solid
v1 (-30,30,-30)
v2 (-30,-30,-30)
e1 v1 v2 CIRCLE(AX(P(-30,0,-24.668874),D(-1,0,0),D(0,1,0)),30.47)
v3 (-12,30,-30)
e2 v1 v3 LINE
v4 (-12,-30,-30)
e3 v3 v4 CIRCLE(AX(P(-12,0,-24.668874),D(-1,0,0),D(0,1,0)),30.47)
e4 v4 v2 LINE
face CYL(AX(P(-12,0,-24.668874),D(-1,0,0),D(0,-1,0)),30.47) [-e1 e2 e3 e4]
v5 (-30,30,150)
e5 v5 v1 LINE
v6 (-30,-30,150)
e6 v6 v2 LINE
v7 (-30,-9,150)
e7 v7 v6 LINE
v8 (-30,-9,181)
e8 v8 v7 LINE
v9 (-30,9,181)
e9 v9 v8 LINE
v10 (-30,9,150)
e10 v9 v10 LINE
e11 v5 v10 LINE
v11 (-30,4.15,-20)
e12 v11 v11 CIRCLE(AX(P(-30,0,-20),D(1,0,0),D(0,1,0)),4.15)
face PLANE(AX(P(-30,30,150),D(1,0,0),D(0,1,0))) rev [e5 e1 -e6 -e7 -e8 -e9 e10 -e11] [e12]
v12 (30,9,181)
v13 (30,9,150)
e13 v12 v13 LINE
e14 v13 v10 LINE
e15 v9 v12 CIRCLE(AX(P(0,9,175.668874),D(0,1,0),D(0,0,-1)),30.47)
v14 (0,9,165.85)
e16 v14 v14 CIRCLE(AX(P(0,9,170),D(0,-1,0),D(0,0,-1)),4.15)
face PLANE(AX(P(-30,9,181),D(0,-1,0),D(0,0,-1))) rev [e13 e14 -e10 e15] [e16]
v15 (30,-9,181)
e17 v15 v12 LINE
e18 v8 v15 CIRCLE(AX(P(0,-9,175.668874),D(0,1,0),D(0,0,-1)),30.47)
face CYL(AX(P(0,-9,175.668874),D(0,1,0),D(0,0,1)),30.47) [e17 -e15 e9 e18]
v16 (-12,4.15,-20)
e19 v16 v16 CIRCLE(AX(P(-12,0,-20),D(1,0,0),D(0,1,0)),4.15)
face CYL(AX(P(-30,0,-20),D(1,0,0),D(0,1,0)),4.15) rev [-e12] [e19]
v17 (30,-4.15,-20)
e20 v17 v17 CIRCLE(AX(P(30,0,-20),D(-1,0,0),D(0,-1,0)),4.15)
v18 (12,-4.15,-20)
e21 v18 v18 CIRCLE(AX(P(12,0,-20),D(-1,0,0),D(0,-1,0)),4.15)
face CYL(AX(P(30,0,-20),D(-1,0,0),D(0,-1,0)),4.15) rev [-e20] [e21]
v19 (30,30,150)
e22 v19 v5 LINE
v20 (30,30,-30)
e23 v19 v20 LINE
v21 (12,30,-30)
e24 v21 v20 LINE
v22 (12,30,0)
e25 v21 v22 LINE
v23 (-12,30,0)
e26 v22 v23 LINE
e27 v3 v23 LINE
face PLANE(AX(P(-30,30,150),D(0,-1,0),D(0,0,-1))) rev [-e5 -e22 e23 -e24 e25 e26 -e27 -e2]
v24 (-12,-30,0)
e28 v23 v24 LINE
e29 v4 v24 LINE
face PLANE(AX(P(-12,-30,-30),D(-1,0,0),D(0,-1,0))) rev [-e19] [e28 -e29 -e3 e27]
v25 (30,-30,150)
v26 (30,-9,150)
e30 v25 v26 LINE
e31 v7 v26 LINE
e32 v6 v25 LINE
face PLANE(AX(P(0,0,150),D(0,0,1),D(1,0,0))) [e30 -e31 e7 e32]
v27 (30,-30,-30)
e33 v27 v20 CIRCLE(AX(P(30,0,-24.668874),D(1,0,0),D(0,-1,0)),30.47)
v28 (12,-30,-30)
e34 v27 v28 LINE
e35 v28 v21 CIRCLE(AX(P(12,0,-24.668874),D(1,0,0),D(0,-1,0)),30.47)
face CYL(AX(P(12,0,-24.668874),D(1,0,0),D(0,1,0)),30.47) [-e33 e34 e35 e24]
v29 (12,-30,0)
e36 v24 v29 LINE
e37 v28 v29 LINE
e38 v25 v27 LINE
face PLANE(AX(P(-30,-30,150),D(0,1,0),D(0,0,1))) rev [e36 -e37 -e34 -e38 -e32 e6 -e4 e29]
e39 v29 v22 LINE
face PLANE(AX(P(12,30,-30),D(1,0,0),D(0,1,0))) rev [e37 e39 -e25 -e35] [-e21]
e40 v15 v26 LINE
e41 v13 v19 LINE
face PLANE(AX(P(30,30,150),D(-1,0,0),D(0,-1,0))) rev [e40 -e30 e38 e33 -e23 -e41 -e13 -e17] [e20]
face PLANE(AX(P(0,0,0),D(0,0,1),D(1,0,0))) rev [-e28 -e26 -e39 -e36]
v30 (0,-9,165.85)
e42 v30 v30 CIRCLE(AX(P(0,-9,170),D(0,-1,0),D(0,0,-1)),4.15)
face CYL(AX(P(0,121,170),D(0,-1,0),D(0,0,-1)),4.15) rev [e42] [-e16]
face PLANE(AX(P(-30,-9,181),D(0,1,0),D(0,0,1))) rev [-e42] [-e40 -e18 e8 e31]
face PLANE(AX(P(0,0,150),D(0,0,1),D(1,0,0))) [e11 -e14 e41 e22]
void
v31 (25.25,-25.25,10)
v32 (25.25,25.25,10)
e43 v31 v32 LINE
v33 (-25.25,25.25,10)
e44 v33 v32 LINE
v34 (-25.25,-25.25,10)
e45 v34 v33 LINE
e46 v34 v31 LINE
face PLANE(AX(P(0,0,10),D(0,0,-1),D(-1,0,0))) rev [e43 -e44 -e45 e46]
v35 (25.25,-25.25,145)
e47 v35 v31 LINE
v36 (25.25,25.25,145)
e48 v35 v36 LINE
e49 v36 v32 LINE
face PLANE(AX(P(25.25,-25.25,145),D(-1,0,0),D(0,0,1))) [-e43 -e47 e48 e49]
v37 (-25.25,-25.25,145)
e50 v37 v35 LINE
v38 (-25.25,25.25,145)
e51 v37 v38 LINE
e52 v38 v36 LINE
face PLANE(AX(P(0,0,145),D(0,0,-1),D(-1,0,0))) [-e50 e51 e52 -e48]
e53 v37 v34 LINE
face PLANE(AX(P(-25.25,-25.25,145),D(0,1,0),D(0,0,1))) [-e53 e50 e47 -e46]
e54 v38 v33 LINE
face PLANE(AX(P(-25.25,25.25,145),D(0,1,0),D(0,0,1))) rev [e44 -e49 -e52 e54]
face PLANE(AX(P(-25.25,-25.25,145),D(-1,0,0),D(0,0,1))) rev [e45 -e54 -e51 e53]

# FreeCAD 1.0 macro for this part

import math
import FreeCAD as App
import Part
import Sketcher

V = App.Vector
Q = App.Units.Quantity


def add_polygon(sketch, points):
    """Adds a closed chain of lines whose ends are joined by coincident constraints."""
    first, n = sketch.GeometryCount, len(points)
    for a, b in zip(points, points[1:] + points[:1]):
        sketch.addGeometry(Part.LineSegment(App.Vector(*a, 0), App.Vector(*b, 0)), False)
    for i in range(n):
        sketch.addConstraint(Sketcher.Constraint("Coincident", first + i, 2, first + (i + 1) % n, 1))

doc = App.newDocument("Part")
body = doc.addObject("PartDesign::Body", "Body")

# Sketch on XY plane
sketch1 = body.newObject("Sketcher::SketchObject", "Sketch")
sketch1.AttachmentSupport = (doc.getObject("XY_Plane"), [""])
sketch1.MapMode = "FlatFace"
add_polygon(sketch1, [(-30, 30), (-30, -30), (30, -30), (30, 30)])  # lines 0-3
sketch1.addConstraint([
    Sketcher.Constraint("Vertical", 0),
    Sketcher.Constraint("Horizontal", 1),
    Sketcher.Constraint("Vertical", 2),
    Sketcher.Constraint("Horizontal", 3),
    Sketcher.Constraint("Symmetric", 0, 2, 2, 2, -1, 1),
    Sketcher.Constraint("Equal", 3, 0),
    Sketcher.Constraint("DistanceX", 1, 1, 1, 2, Q("60 mm")),
])
pad1 = body.newObject("PartDesign::Pad", "Pad")
pad1.Profile = sketch1
pad1.Length = 150

# Sketch on XY plane
sketch2 = body.newObject("Sketcher::SketchObject", "Sketch001")
sketch2.AttachmentSupport = (doc.getObject("XY_Plane"), [""])
sketch2.MapMode = "FlatFace"
add_polygon(sketch2, [(-12, 30), (-12, -30), (-30, -30), (-30, 30)])  # lines 0-3
add_polygon(sketch2, [(30, 30), (30, -30), (12, -30), (12, 30)])  # lines 4-7
sketch2.addConstraint([
    Sketcher.Constraint("Vertical", 0),
    Sketcher.Constraint("Horizontal", 1),
    Sketcher.Constraint("Vertical", 2),
    Sketcher.Constraint("Horizontal", 3),
    Sketcher.Constraint("Vertical", 4),
    Sketcher.Constraint("Horizontal", 5),
    Sketcher.Constraint("Vertical", 6),
    Sketcher.Constraint("Horizontal", 7),
    Sketcher.Constraint("Symmetric", 2, 2, 4, 2, -1, 1),
    Sketcher.Constraint("Symmetric", 0, 2, 6, 2, -1, 1),
    Sketcher.Constraint("Horizontal", 1, 2, 4, 2),
    Sketcher.Constraint("DistanceX", 1, 2, 1, 1, Q("18 mm")),
    Sketcher.Constraint("DistanceY", 0, 2, 0, 1, Q("60 mm")),
    Sketcher.Constraint("DistanceX", 0, 2, -1, 1, Q("12 mm")),
])
pad2 = body.newObject("PartDesign::Pad", "Pad001")
pad2.Profile = sketch2
pad2.Length = 30
pad2.Reversed = True

# Sketch on YZ plane
sketch3 = body.newObject("Sketcher::SketchObject", "Sketch002")
sketch3.AttachmentSupport = (doc.getObject("YZ_Plane"), [""])
sketch3.MapMode = "FlatFace"
sketch3.AttachmentOffset = App.Placement(V(0, 0, 30), App.Rotation())
sketch3.addGeometry([
    Part.LineSegment(V(30, -30, 0), V(-30, -30, 0)),
    Part.ArcOfCircle(Part.Circle(V(0, -25, 0), V(0, 0, 1), 30), math.radians(-170), math.radians(-10)),
], False)
sketch3.addConstraint([
    Sketcher.Constraint("Coincident", 0, 1, 1, 2),
    Sketcher.Constraint("Coincident", 1, 1, 0, 2),
    Sketcher.Constraint("Horizontal", 0),
    Sketcher.Constraint("PointOnObject", 1, 3, -2),
    Sketcher.Constraint("DistanceX", 0, 2, 0, 1, Q("60 mm")),
    Sketcher.Constraint("Radius", 1, Q("30.47 mm")),
    Sketcher.Constraint("DistanceY", 0, 1, -1, 1, Q("30 mm")),
])
pad3 = body.newObject("PartDesign::Pad", "Pad002")
pad3.Profile = sketch3
pad3.Length = 18
pad3.Reversed = True

# Sketch on YZ plane
sketch4 = body.newObject("Sketcher::SketchObject", "Sketch003")
sketch4.AttachmentSupport = (doc.getObject("YZ_Plane"), [""])
sketch4.MapMode = "FlatFace"
sketch4.AttachmentOffset = App.Placement(V(0, 0, -12), App.Rotation())
sketch4.addGeometry([
    Part.LineSegment(V(-30, -30, 0), V(30, -30, 0)),
    Part.ArcOfCircle(Part.Circle(V(0, -25, 0), V(0, 0, 1), 30), math.radians(-170), math.radians(-10)),
], False)
sketch4.addConstraint([
    Sketcher.Constraint("Coincident", 0, 1, 1, 1),
    Sketcher.Constraint("Coincident", 1, 2, 0, 2),
    Sketcher.Constraint("Horizontal", 0),
    Sketcher.Constraint("PointOnObject", 1, 3, -2),
    Sketcher.Constraint("DistanceX", 0, 1, 0, 2, Q("60 mm")),
    Sketcher.Constraint("Radius", 1, Q("30.47 mm")),
    Sketcher.Constraint("DistanceY", 0, 1, -1, 1, Q("30 mm")),
])
pad4 = body.newObject("PartDesign::Pad", "Pad003")
pad4.Profile = sketch4
pad4.Length = 18
pad4.Reversed = True

# Sketch on XY plane
sketch5 = body.newObject("Sketcher::SketchObject", "Sketch004")
sketch5.AttachmentSupport = (doc.getObject("XY_Plane"), [""])
sketch5.MapMode = "FlatFace"
sketch5.AttachmentOffset = App.Placement(V(0, 0, 150), App.Rotation())
add_polygon(sketch5, [(-30, 9), (-30, -9), (30, -9), (30, 9)])  # lines 0-3
sketch5.addConstraint([
    Sketcher.Constraint("Vertical", 0),
    Sketcher.Constraint("Horizontal", 1),
    Sketcher.Constraint("Vertical", 2),
    Sketcher.Constraint("Horizontal", 3),
    Sketcher.Constraint("Symmetric", 0, 2, 2, 2, -1, 1),
    Sketcher.Constraint("DistanceX", 1, 1, 1, 2, Q("60 mm")),
    Sketcher.Constraint("DistanceY", 0, 2, 0, 1, Q("18 mm")),
])
pad5 = body.newObject("PartDesign::Pad", "Pad004")
pad5.Profile = sketch5
pad5.Length = 31

# Sketch on XZ plane
sketch6 = body.newObject("Sketcher::SketchObject", "Sketch005")
sketch6.AttachmentSupport = (doc.getObject("XZ_Plane"), [""])
sketch6.MapMode = "FlatFace"
sketch6.AttachmentOffset = App.Placement(V(0, 0, -9), App.Rotation())
sketch6.addGeometry([
    Part.LineSegment(V(30, 181, 0), V(-30, 181, 0)),
    Part.ArcOfCircle(Part.Circle(V(0, 176, 0), V(0, 0, 1), 30), math.radians(10), math.radians(170)),
], False)
sketch6.addConstraint([
    Sketcher.Constraint("Coincident", 0, 1, 1, 1),
    Sketcher.Constraint("Coincident", 1, 2, 0, 2),
    Sketcher.Constraint("Horizontal", 0),
    Sketcher.Constraint("PointOnObject", 1, 3, -2),
    Sketcher.Constraint("DistanceX", 0, 2, 0, 1, Q("60 mm")),
    Sketcher.Constraint("Radius", 1, Q("30.47 mm")),
    Sketcher.Constraint("DistanceY", -1, 1, 0, 1, Q("181 mm")),
])
pad6 = body.newObject("PartDesign::Pad", "Pad005")
pad6.Profile = sketch6
pad6.Length = 18

# Sketch on XY plane
sketch7 = body.newObject("Sketcher::SketchObject", "Sketch006")
sketch7.AttachmentSupport = (doc.getObject("XY_Plane"), [""])
sketch7.MapMode = "FlatFace"
sketch7.AttachmentOffset = App.Placement(V(0, 0, 140), App.Rotation())
add_polygon(sketch7, [(-25, 25), (-25, -25), (25, -25), (25, 25)])  # lines 0-3
sketch7.addConstraint([
    Sketcher.Constraint("Vertical", 0),
    Sketcher.Constraint("Horizontal", 1),
    Sketcher.Constraint("Vertical", 2),
    Sketcher.Constraint("Horizontal", 3),
    Sketcher.Constraint("Symmetric", 0, 2, 2, 2, -1, 1),
    Sketcher.Constraint("Equal", 3, 0),
    Sketcher.Constraint("DistanceX", 1, 1, 1, 2, Q("50.5 mm")),
])
pocket1 = body.newObject("PartDesign::Pocket", "Pocket")
pocket1.Profile = sketch7
pocket1.Type = "TwoLengths"
pocket1.Length = 5
pocket1.Length2 = 130
pocket1.Reversed = True

# Sketch on XZ plane
sketch8 = body.newObject("Sketcher::SketchObject", "Sketch007")
sketch8.AttachmentSupport = (doc.getObject("XZ_Plane"), [""])
sketch8.MapMode = "FlatFace"
sketch8.AttachmentOffset = App.Placement(V(0, 0, 9), App.Rotation())
sketch8.addGeometry(Part.Circle(V(0, 170, 0), V(0, 0, 1), 4.2), False)
sketch8.addConstraint([
    Sketcher.Constraint("PointOnObject", 0, 3, -2),
    Sketcher.Constraint("Diameter", 0, Q("8.3 mm")),
    Sketcher.Constraint("DistanceY", -1, 1, 0, 3, Q("170 mm")),
])
pocket2 = body.newObject("PartDesign::Pocket", "Pocket001")
pocket2.Profile = sketch8
pocket2.Length = 130

# Sketch on YZ plane
sketch9 = body.newObject("Sketcher::SketchObject", "Sketch008")
sketch9.AttachmentSupport = (doc.getObject("YZ_Plane"), [""])
sketch9.MapMode = "FlatFace"
sketch9.AttachmentOffset = App.Placement(V(0, 0, 12), App.Rotation())
sketch9.addGeometry(Part.Circle(V(0, -20, 0), V(0, 0, 1), 4.2), False)
sketch9.addConstraint([
    Sketcher.Constraint("PointOnObject", 0, 3, -2),
    Sketcher.Constraint("Diameter", 0, Q("8.3 mm")),
    Sketcher.Constraint("DistanceY", 0, 3, -1, 1, Q("20 mm")),
])
pocket3 = body.newObject("PartDesign::Pocket", "Pocket002")
pocket3.Profile = sketch9
pocket3.Type = "ThroughAll"
pocket3.Reversed = True

# Sketch on YZ plane
sketch10 = body.newObject("Sketcher::SketchObject", "Sketch009")
sketch10.AttachmentSupport = (doc.getObject("YZ_Plane"), [""])
sketch10.MapMode = "FlatFace"
sketch10.AttachmentOffset = App.Placement(V(0, 0, -12), App.Rotation())
sketch10.addGeometry(Part.Circle(V(0, -20, 0), V(0, 0, 1), 4.2), False)
sketch10.addConstraint([
    Sketcher.Constraint("PointOnObject", 0, 3, -2),
    Sketcher.Constraint("Diameter", 0, Q("8.3 mm")),
    Sketcher.Constraint("DistanceY", 0, 3, -1, 1, Q("20 mm")),
])
pocket4 = body.newObject("PartDesign::Pocket", "Pocket003")
pocket4.Profile = sketch10
pocket4.Type = "ThroughAll"

doc.recompute()
